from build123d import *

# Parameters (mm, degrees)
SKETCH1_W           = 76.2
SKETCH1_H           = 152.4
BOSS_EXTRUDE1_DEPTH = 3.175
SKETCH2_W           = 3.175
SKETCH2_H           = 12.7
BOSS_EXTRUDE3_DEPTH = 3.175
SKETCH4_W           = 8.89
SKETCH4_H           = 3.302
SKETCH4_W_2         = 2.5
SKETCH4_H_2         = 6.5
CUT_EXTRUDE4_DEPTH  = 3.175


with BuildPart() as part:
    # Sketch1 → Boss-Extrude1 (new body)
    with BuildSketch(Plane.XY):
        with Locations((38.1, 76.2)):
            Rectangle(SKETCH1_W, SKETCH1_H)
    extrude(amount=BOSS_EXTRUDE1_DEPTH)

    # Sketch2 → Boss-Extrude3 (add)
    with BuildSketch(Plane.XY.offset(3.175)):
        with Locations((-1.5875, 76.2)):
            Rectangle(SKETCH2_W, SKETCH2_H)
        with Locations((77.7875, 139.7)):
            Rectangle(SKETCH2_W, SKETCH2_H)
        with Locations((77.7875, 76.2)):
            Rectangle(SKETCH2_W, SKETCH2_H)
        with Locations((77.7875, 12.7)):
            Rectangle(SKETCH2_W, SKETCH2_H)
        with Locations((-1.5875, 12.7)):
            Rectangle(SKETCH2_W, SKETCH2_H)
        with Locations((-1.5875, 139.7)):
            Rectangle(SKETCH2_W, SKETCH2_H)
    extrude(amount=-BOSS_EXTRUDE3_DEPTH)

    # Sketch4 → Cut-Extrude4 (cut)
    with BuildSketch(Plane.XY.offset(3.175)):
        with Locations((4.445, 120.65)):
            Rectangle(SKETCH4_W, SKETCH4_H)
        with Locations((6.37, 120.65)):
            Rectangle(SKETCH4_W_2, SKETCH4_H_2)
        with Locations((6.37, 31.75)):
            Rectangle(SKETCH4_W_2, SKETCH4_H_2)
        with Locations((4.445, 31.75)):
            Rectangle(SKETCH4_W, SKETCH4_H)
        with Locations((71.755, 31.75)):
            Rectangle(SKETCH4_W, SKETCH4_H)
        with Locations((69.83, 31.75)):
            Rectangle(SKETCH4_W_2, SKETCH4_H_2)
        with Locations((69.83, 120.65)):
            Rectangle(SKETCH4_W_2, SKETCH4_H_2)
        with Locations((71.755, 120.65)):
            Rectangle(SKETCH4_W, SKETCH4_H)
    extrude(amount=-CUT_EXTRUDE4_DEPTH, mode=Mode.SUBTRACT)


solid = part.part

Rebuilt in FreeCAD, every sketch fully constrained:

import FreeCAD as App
import Part
import Sketcher
from FreeCAD import Vector
Q = App.Units.Quantity

doc = App.newDocument("Part")
body = doc.addObject("PartDesign::Body", "Body")

sketch1 = doc.addObject("Sketcher::SketchObject", "Sketch")
body.addObject(sketch1)
sketch1.AttachmentSupport = (doc.XY_Plane, [""])
sketch1.MapMode = "FlatFace"
sketch1.addGeometry(Part.LineSegment(Vector(0, 152.4, 0), Vector(0, 0, 0)), False)
sketch1.addGeometry(Part.LineSegment(Vector(0, 0, 0), Vector(76.2, 0, 0)), False)
sketch1.addGeometry(Part.LineSegment(Vector(76.2, 0, 0), Vector(76.2, 152.4, 0)), False)
sketch1.addGeometry(Part.LineSegment(Vector(76.2, 152.4, 0), Vector(0, 152.4, 0)), False)
sketch1.addConstraint(Sketcher.Constraint("Coincident", 0, 2, 1, 1))
sketch1.addConstraint(Sketcher.Constraint("Coincident", 1, 2, 2, 1))
sketch1.addConstraint(Sketcher.Constraint("Coincident", 2, 2, 3, 1))
sketch1.addConstraint(Sketcher.Constraint("Coincident", 3, 2, 0, 1))
sketch1.addConstraint(Sketcher.Constraint("Vertical", 0))
sketch1.addConstraint(Sketcher.Constraint("Horizontal", 1))
sketch1.addConstraint(Sketcher.Constraint("Vertical", 2))
sketch1.addConstraint(Sketcher.Constraint("Horizontal", 3))
sketch1.addConstraint(Sketcher.Constraint("Coincident", 0, 2, -1, 1))
sketch1.addConstraint(Sketcher.Constraint("DistanceX", 1, 1, 1, 2, Q("3 in")))
sketch1.addConstraint(Sketcher.Constraint("DistanceY", 0, 2, 0, 1, Q("6 in")))
pad1 = doc.addObject("PartDesign::Pad", "Pad")
body.addObject(pad1)
pad1.Profile = sketch1
pad1.Length = Q("0.125 in")

sketch2 = doc.addObject("Sketcher::SketchObject", "Sketch001")
body.addObject(sketch2)
sketch2.AttachmentSupport = (doc.XY_Plane, [""])
sketch2.MapMode = "FlatFace"
sketch2.AttachmentOffset = App.Placement(Vector(0, 0, 0.125 * 25.4), App.Rotation())
sketch2.addGeometry(Part.LineSegment(Vector(-3.175, 82.55, 0), Vector(-3.175, 69.85, 0)), False)
sketch2.addGeometry(Part.LineSegment(Vector(-3.175, 69.85, 0), Vector(0, 69.85, 0)), False)
sketch2.addGeometry(Part.LineSegment(Vector(0, 69.85, 0), Vector(0, 82.55, 0)), False)
sketch2.addGeometry(Part.LineSegment(Vector(0, 82.55, 0), Vector(-3.175, 82.55, 0)), False)
sketch2.addGeometry(Part.LineSegment(Vector(76.2, 146.05, 0), Vector(76.2, 133.35, 0)), False)
sketch2.addGeometry(Part.LineSegment(Vector(76.2, 133.35, 0), Vector(79.375, 133.35, 0)), False)
sketch2.addGeometry(Part.LineSegment(Vector(79.375, 133.35, 0), Vector(79.375, 146.05, 0)), False)
sketch2.addGeometry(Part.LineSegment(Vector(79.375, 146.05, 0), Vector(76.2, 146.05, 0)), False)
sketch2.addGeometry(Part.LineSegment(Vector(76.2, 82.55, 0), Vector(76.2, 69.85, 0)), False)
sketch2.addGeometry(Part.LineSegment(Vector(76.2, 69.85, 0), Vector(79.375, 69.85, 0)), False)
sketch2.addGeometry(Part.LineSegment(Vector(79.375, 69.85, 0), Vector(79.375, 82.55, 0)), False)
sketch2.addGeometry(Part.LineSegment(Vector(79.375, 82.55, 0), Vector(76.2, 82.55, 0)), False)
sketch2.addGeometry(Part.LineSegment(Vector(76.2, 19.05, 0), Vector(76.2, 6.35, 0)), False)
sketch2.addGeometry(Part.LineSegment(Vector(76.2, 6.35, 0), Vector(79.375, 6.35, 0)), False)
sketch2.addGeometry(Part.LineSegment(Vector(79.375, 6.35, 0), Vector(79.375, 19.05, 0)), False)
sketch2.addGeometry(Part.LineSegment(Vector(79.375, 19.05, 0), Vector(76.2, 19.05, 0)), False)
sketch2.addGeometry(Part.LineSegment(Vector(-3.175, 19.05, 0), Vector(-3.175, 6.35, 0)), False)
sketch2.addGeometry(Part.LineSegment(Vector(-3.175, 6.35, 0), Vector(0, 6.35, 0)), False)
sketch2.addGeometry(Part.LineSegment(Vector(0, 6.35, 0), Vector(0, 19.05, 0)), False)
sketch2.addGeometry(Part.LineSegment(Vector(0, 19.05, 0), Vector(-3.175, 19.05, 0)), False)
sketch2.addGeometry(Part.LineSegment(Vector(-3.175, 146.05, 0), Vector(-3.175, 133.35, 0)), False)
sketch2.addGeometry(Part.LineSegment(Vector(-3.175, 133.35, 0), Vector(0, 133.35, 0)), False)
sketch2.addGeometry(Part.LineSegment(Vector(0, 133.35, 0), Vector(0, 146.05, 0)), False)
sketch2.addGeometry(Part.LineSegment(Vector(0, 146.05, 0), Vector(-3.175, 146.05, 0)), False)
sketch2.addConstraint(Sketcher.Constraint("Coincident", 0, 2, 1, 1))
sketch2.addConstraint(Sketcher.Constraint("Coincident", 1, 2, 2, 1))
sketch2.addConstraint(Sketcher.Constraint("Coincident", 2, 2, 3, 1))
sketch2.addConstraint(Sketcher.Constraint("Coincident", 3, 2, 0, 1))
sketch2.addConstraint(Sketcher.Constraint("Coincident", 4, 2, 5, 1))
sketch2.addConstraint(Sketcher.Constraint("Coincident", 5, 2, 6, 1))
sketch2.addConstraint(Sketcher.Constraint("Coincident", 6, 2, 7, 1))
sketch2.addConstraint(Sketcher.Constraint("Coincident", 7, 2, 4, 1))
sketch2.addConstraint(Sketcher.Constraint("Coincident", 8, 2, 9, 1))
sketch2.addConstraint(Sketcher.Constraint("Coincident", 9, 2, 10, 1))
sketch2.addConstraint(Sketcher.Constraint("Coincident", 10, 2, 11, 1))
sketch2.addConstraint(Sketcher.Constraint("Coincident", 11, 2, 8, 1))
sketch2.addConstraint(Sketcher.Constraint("Coincident", 12, 2, 13, 1))
sketch2.addConstraint(Sketcher.Constraint("Coincident", 13, 2, 14, 1))
sketch2.addConstraint(Sketcher.Constraint("Coincident", 14, 2, 15, 1))
sketch2.addConstraint(Sketcher.Constraint("Coincident", 15, 2, 12, 1))
sketch2.addConstraint(Sketcher.Constraint("Coincident", 16, 2, 17, 1))
sketch2.addConstraint(Sketcher.Constraint("Coincident", 17, 2, 18, 1))
sketch2.addConstraint(Sketcher.Constraint("Coincident", 18, 2, 19, 1))
sketch2.addConstraint(Sketcher.Constraint("Coincident", 19, 2, 16, 1))
sketch2.addConstraint(Sketcher.Constraint("Coincident", 20, 2, 21, 1))
sketch2.addConstraint(Sketcher.Constraint("Coincident", 21, 2, 22, 1))
sketch2.addConstraint(Sketcher.Constraint("Coincident", 22, 2, 23, 1))
sketch2.addConstraint(Sketcher.Constraint("Coincident", 23, 2, 20, 1))
sketch2.addConstraint(Sketcher.Constraint("Vertical", 0))
sketch2.addConstraint(Sketcher.Constraint("Horizontal", 1))
sketch2.addConstraint(Sketcher.Constraint("Vertical", 2))
sketch2.addConstraint(Sketcher.Constraint("Horizontal", 3))
sketch2.addConstraint(Sketcher.Constraint("Vertical", 4))
sketch2.addConstraint(Sketcher.Constraint("Horizontal", 5))
sketch2.addConstraint(Sketcher.Constraint("Vertical", 6))
sketch2.addConstraint(Sketcher.Constraint("Horizontal", 7))
sketch2.addConstraint(Sketcher.Constraint("Vertical", 8))
sketch2.addConstraint(Sketcher.Constraint("Horizontal", 9))
sketch2.addConstraint(Sketcher.Constraint("Vertical", 10))
sketch2.addConstraint(Sketcher.Constraint("Horizontal", 11))
sketch2.addConstraint(Sketcher.Constraint("Vertical", 12))
sketch2.addConstraint(Sketcher.Constraint("Horizontal", 13))
sketch2.addConstraint(Sketcher.Constraint("Vertical", 14))
sketch2.addConstraint(Sketcher.Constraint("Horizontal", 15))
sketch2.addConstraint(Sketcher.Constraint("Vertical", 16))
sketch2.addConstraint(Sketcher.Constraint("Horizontal", 17))
sketch2.addConstraint(Sketcher.Constraint("Vertical", 18))
sketch2.addConstraint(Sketcher.Constraint("Horizontal", 19))
sketch2.addConstraint(Sketcher.Constraint("Vertical", 20))
sketch2.addConstraint(Sketcher.Constraint("Horizontal", 21))
sketch2.addConstraint(Sketcher.Constraint("Vertical", 22))
sketch2.addConstraint(Sketcher.Constraint("Horizontal", 23))
sketch2.addConstraint(Sketcher.Constraint("PointOnObject", 1, 2, -2))
sketch2.addConstraint(Sketcher.Constraint("PointOnObject", 17, 2, -2))
sketch2.addConstraint(Sketcher.Constraint("PointOnObject", 21, 2, -2))
sketch2.addConstraint(Sketcher.Constraint("Horizontal", 1, 2, 8, 2))
sketch2.addConstraint(Sketcher.Constraint("Horizontal", 3, 2, 10, 2))
sketch2.addConstraint(Sketcher.Constraint("Horizontal", 13, 2, 16, 2))
sketch2.addConstraint(Sketcher.Constraint("Horizontal", 15, 2, 18, 2))
sketch2.addConstraint(Sketcher.Constraint("Horizontal", 5, 2, 20, 2))
sketch2.addConstraint(Sketcher.Constraint("Horizontal", 7, 2, 22, 2))
sketch2.addConstraint(Sketcher.Constraint("Vertical", 7, 2, 8, 2))
sketch2.addConstraint(Sketcher.Constraint("Vertical", 6, 2, 9, 2))
sketch2.addConstraint(Sketcher.Constraint("Vertical", 11, 2, 12, 2))
sketch2.addConstraint(Sketcher.Constraint("Vertical", 10, 2, 13, 2))
sketch2.addConstraint(Sketcher.Constraint("Vertical", 3, 2, 16, 2))
sketch2.addConstraint(Sketcher.Constraint("Vertical", 19, 2, 20, 2))
sketch2.addConstraint(Sketcher.Constraint("Equal", 3, 5))
sketch2.addConstraint(Sketcher.Constraint("Equal", 2, 4))
sketch2.addConstraint(Sketcher.Constraint("Equal", 10, 12))
sketch2.addConstraint(Sketcher.Constraint("DistanceY", 0, 2, 0, 1, Q("0.5 in")))
sketch2.addConstraint(Sketcher.Constraint("DistanceX", -1, 1, 4, 2, Q("3 in")))
sketch2.addConstraint(Sketcher.Constraint("DistanceY", 2, 2, 4, 2, Q("2 in")))
sketch2.addConstraint(Sketcher.Constraint("DistanceY", 12, 2, 11, 2, Q("3 in")))
sketch2.addConstraint(Sketcher.Constraint("DistanceX", 1, 1, 1, 2, Q("0.125 in")))
sketch2.addConstraint(Sketcher.Constraint("DistanceY", -1, 1, 0, 2, Q("2.75 in")))
pad2 = doc.addObject("PartDesign::Pad", "Pad001")
body.addObject(pad2)
pad2.Profile = sketch2
pad2.Length = Q("0.125 in")
pad2.Reversed = True

sketch3 = doc.addObject("Sketcher::SketchObject", "Sketch002")
body.addObject(sketch3)
sketch3.AttachmentSupport = (doc.XY_Plane, [""])
sketch3.MapMode = "FlatFace"
sketch3.AttachmentOffset = App.Placement(Vector(0, 0, 0.125 * 25.4), App.Rotation())
sketch3.addGeometry(Part.LineSegment(Vector(0, 122.301, 0), Vector(0, 118.999, 0)), False)
sketch3.addGeometry(Part.LineSegment(Vector(0, 118.999, 0), Vector(5.12, 118.999, 0)), False)
sketch3.addGeometry(Part.LineSegment(Vector(5.12, 118.999, 0), Vector(5.12, 117.4, 0)), False)
sketch3.addGeometry(Part.LineSegment(Vector(5.12, 117.4, 0), Vector(7.62, 117.4, 0)), False)
sketch3.addGeometry(Part.LineSegment(Vector(7.62, 117.4, 0), Vector(7.62, 118.999, 0)), False)
sketch3.addGeometry(Part.LineSegment(Vector(7.62, 118.999, 0), Vector(8.89, 118.999, 0)), False)
sketch3.addGeometry(Part.LineSegment(Vector(8.89, 118.999, 0), Vector(8.89, 122.301, 0)), False)
sketch3.addGeometry(Part.LineSegment(Vector(8.89, 122.301, 0), Vector(7.62, 122.301, 0)), False)
sketch3.addGeometry(Part.LineSegment(Vector(7.62, 122.301, 0), Vector(7.62, 123.9, 0)), False)
sketch3.addGeometry(Part.LineSegment(Vector(7.62, 123.9, 0), Vector(5.12, 123.9, 0)), False)
sketch3.addGeometry(Part.LineSegment(Vector(5.12, 123.9, 0), Vector(5.12, 122.301, 0)), False)
sketch3.addGeometry(Part.LineSegment(Vector(5.12, 122.301, 0), Vector(0, 122.301, 0)), False)
sketch3.addGeometry(Part.LineSegment(Vector(5.12, 30.099, 0), Vector(5.12, 28.5, 0)), False)
sketch3.addGeometry(Part.LineSegment(Vector(5.12, 28.5, 0), Vector(7.62, 28.5, 0)), False)
sketch3.addGeometry(Part.LineSegment(Vector(7.62, 28.5, 0), Vector(7.62, 30.099, 0)), False)
sketch3.addGeometry(Part.LineSegment(Vector(7.62, 30.099, 0), Vector(8.89, 30.099, 0)), False)
sketch3.addGeometry(Part.LineSegment(Vector(8.89, 30.099, 0), Vector(8.89, 33.401, 0)), False)
sketch3.addGeometry(Part.LineSegment(Vector(8.89, 33.401, 0), Vector(7.62, 33.401, 0)), False)
sketch3.addGeometry(Part.LineSegment(Vector(7.62, 33.401, 0), Vector(7.62, 35, 0)), False)
sketch3.addGeometry(Part.LineSegment(Vector(7.62, 35, 0), Vector(5.12, 35, 0)), False)
sketch3.addGeometry(Part.LineSegment(Vector(5.12, 35, 0), Vector(5.12, 33.401, 0)), False)
sketch3.addGeometry(Part.LineSegment(Vector(5.12, 33.401, 0), Vector(0, 33.401, 0)), False)
sketch3.addGeometry(Part.LineSegment(Vector(0, 33.401, 0), Vector(0, 30.099, 0)), False)
sketch3.addGeometry(Part.LineSegment(Vector(0, 30.099, 0), Vector(5.12, 30.099, 0)), False)
sketch3.addGeometry(Part.LineSegment(Vector(67.31, 33.401, 0), Vector(67.31, 30.099, 0)), False)
sketch3.addGeometry(Part.LineSegment(Vector(67.31, 30.099, 0), Vector(68.58, 30.099, 0)), False)
sketch3.addGeometry(Part.LineSegment(Vector(68.58, 30.099, 0), Vector(68.58, 28.5, 0)), False)
sketch3.addGeometry(Part.LineSegment(Vector(68.58, 28.5, 0), Vector(71.08, 28.5, 0)), False)
sketch3.addGeometry(Part.LineSegment(Vector(71.08, 28.5, 0), Vector(71.08, 30.099, 0)), False)
sketch3.addGeometry(Part.LineSegment(Vector(71.08, 30.099, 0), Vector(76.2, 30.099, 0)), False)
sketch3.addGeometry(Part.LineSegment(Vector(76.2, 30.099, 0), Vector(76.2, 33.401, 0)), False)
sketch3.addGeometry(Part.LineSegment(Vector(76.2, 33.401, 0), Vector(71.08, 33.401, 0)), False)
sketch3.addGeometry(Part.LineSegment(Vector(71.08, 33.401, 0), Vector(71.08, 35, 0)), False)
sketch3.addGeometry(Part.LineSegment(Vector(71.08, 35, 0), Vector(68.58, 35, 0)), False)
sketch3.addGeometry(Part.LineSegment(Vector(68.58, 35, 0), Vector(68.58, 33.401, 0)), False)
sketch3.addGeometry(Part.LineSegment(Vector(68.58, 33.401, 0), Vector(67.31, 33.401, 0)), False)
sketch3.addGeometry(Part.LineSegment(Vector(68.58, 118.999, 0), Vector(68.58, 117.4, 0)), False)
sketch3.addGeometry(Part.LineSegment(Vector(68.58, 117.4, 0), Vector(71.08, 117.4, 0)), False)
sketch3.addGeometry(Part.LineSegment(Vector(71.08, 117.4, 0), Vector(71.08, 118.999, 0)), False)
sketch3.addGeometry(Part.LineSegment(Vector(71.08, 118.999, 0), Vector(76.2, 118.999, 0)), False)
sketch3.addGeometry(Part.LineSegment(Vector(76.2, 118.999, 0), Vector(76.2, 122.301, 0)), False)
sketch3.addGeometry(Part.LineSegment(Vector(76.2, 122.301, 0), Vector(71.08, 122.301, 0)), False)
sketch3.addGeometry(Part.LineSegment(Vector(71.08, 122.301, 0), Vector(71.08, 123.9, 0)), False)
sketch3.addGeometry(Part.LineSegment(Vector(71.08, 123.9, 0), Vector(68.58, 123.9, 0)), False)
sketch3.addGeometry(Part.LineSegment(Vector(68.58, 123.9, 0), Vector(68.58, 122.301, 0)), False)
sketch3.addGeometry(Part.LineSegment(Vector(68.58, 122.301, 0), Vector(67.31, 122.301, 0)), False)
sketch3.addGeometry(Part.LineSegment(Vector(67.31, 122.301, 0), Vector(67.31, 118.999, 0)), False)
sketch3.addGeometry(Part.LineSegment(Vector(67.31, 118.999, 0), Vector(68.58, 118.999, 0)), False)
sketch3.addConstraint(Sketcher.Constraint("Coincident", 0, 2, 1, 1))
sketch3.addConstraint(Sketcher.Constraint("Coincident", 1, 2, 2, 1))
sketch3.addConstraint(Sketcher.Constraint("Coincident", 2, 2, 3, 1))
sketch3.addConstraint(Sketcher.Constraint("Coincident", 3, 2, 4, 1))
sketch3.addConstraint(Sketcher.Constraint("Coincident", 4, 2, 5, 1))
sketch3.addConstraint(Sketcher.Constraint("Coincident", 5, 2, 6, 1))
sketch3.addConstraint(Sketcher.Constraint("Coincident", 6, 2, 7, 1))
sketch3.addConstraint(Sketcher.Constraint("Coincident", 7, 2, 8, 1))
sketch3.addConstraint(Sketcher.Constraint("Coincident", 8, 2, 9, 1))
sketch3.addConstraint(Sketcher.Constraint("Coincident", 9, 2, 10, 1))
sketch3.addConstraint(Sketcher.Constraint("Coincident", 10, 2, 11, 1))
sketch3.addConstraint(Sketcher.Constraint("Coincident", 11, 2, 0, 1))
sketch3.addConstraint(Sketcher.Constraint("Coincident", 12, 2, 13, 1))
sketch3.addConstraint(Sketcher.Constraint("Coincident", 13, 2, 14, 1))
sketch3.addConstraint(Sketcher.Constraint("Coincident", 14, 2, 15, 1))
sketch3.addConstraint(Sketcher.Constraint("Coincident", 15, 2, 16, 1))
sketch3.addConstraint(Sketcher.Constraint("Coincident", 16, 2, 17, 1))
sketch3.addConstraint(Sketcher.Constraint("Coincident", 17, 2, 18, 1))
sketch3.addConstraint(Sketcher.Constraint("Coincident", 18, 2, 19, 1))
sketch3.addConstraint(Sketcher.Constraint("Coincident", 19, 2, 20, 1))
sketch3.addConstraint(Sketcher.Constraint("Coincident", 20, 2, 21, 1))
sketch3.addConstraint(Sketcher.Constraint("Coincident", 21, 2, 22, 1))
sketch3.addConstraint(Sketcher.Constraint("Coincident", 22, 2, 23, 1))
sketch3.addConstraint(Sketcher.Constraint("Coincident", 23, 2, 12, 1))
sketch3.addConstraint(Sketcher.Constraint("Coincident", 24, 2, 25, 1))
sketch3.addConstraint(Sketcher.Constraint("Coincident", 25, 2, 26, 1))
sketch3.addConstraint(Sketcher.Constraint("Coincident", 26, 2, 27, 1))
sketch3.addConstraint(Sketcher.Constraint("Coincident", 27, 2, 28, 1))
sketch3.addConstraint(Sketcher.Constraint("Coincident", 28, 2, 29, 1))
sketch3.addConstraint(Sketcher.Constraint("Coincident", 29, 2, 30, 1))
sketch3.addConstraint(Sketcher.Constraint("Coincident", 30, 2, 31, 1))
sketch3.addConstraint(Sketcher.Constraint("Coincident", 31, 2, 32, 1))
sketch3.addConstraint(Sketcher.Constraint("Coincident", 32, 2, 33, 1))
sketch3.addConstraint(Sketcher.Constraint("Coincident", 33, 2, 34, 1))
sketch3.addConstraint(Sketcher.Constraint("Coincident", 34, 2, 35, 1))
sketch3.addConstraint(Sketcher.Constraint("Coincident", 35, 2, 24, 1))
sketch3.addConstraint(Sketcher.Constraint("Coincident", 36, 2, 37, 1))
sketch3.addConstraint(Sketcher.Constraint("Coincident", 37, 2, 38, 1))
sketch3.addConstraint(Sketcher.Constraint("Coincident", 38, 2, 39, 1))
sketch3.addConstraint(Sketcher.Constraint("Coincident", 39, 2, 40, 1))
sketch3.addConstraint(Sketcher.Constraint("Coincident", 40, 2, 41, 1))
sketch3.addConstraint(Sketcher.Constraint("Coincident", 41, 2, 42, 1))
sketch3.addConstraint(Sketcher.Constraint("Coincident", 42, 2, 43, 1))
sketch3.addConstraint(Sketcher.Constraint("Coincident", 43, 2, 44, 1))
sketch3.addConstraint(Sketcher.Constraint("Coincident", 44, 2, 45, 1))
sketch3.addConstraint(Sketcher.Constraint("Coincident", 45, 2, 46, 1))
sketch3.addConstraint(Sketcher.Constraint("Coincident", 46, 2, 47, 1))
sketch3.addConstraint(Sketcher.Constraint("Coincident", 47, 2, 36, 1))
sketch3.addConstraint(Sketcher.Constraint("Vertical", 0))
sketch3.addConstraint(Sketcher.Constraint("Horizontal", 1))
sketch3.addConstraint(Sketcher.Constraint("Vertical", 2))
sketch3.addConstraint(Sketcher.Constraint("Horizontal", 3))
sketch3.addConstraint(Sketcher.Constraint("Vertical", 4))
sketch3.addConstraint(Sketcher.Constraint("Horizontal", 5))
sketch3.addConstraint(Sketcher.Constraint("Vertical", 6))
sketch3.addConstraint(Sketcher.Constraint("Horizontal", 7))
sketch3.addConstraint(Sketcher.Constraint("Vertical", 8))
sketch3.addConstraint(Sketcher.Constraint("Horizontal", 9))
sketch3.addConstraint(Sketcher.Constraint("Vertical", 10))
sketch3.addConstraint(Sketcher.Constraint("Horizontal", 11))
sketch3.addConstraint(Sketcher.Constraint("Vertical", 12))
sketch3.addConstraint(Sketcher.Constraint("Horizontal", 13))
sketch3.addConstraint(Sketcher.Constraint("Vertical", 14))
sketch3.addConstraint(Sketcher.Constraint("Horizontal", 15))
sketch3.addConstraint(Sketcher.Constraint("Vertical", 16))
sketch3.addConstraint(Sketcher.Constraint("Horizontal", 17))
sketch3.addConstraint(Sketcher.Constraint("Vertical", 18))
sketch3.addConstraint(Sketcher.Constraint("Horizontal", 19))
sketch3.addConstraint(Sketcher.Constraint("Vertical", 20))
sketch3.addConstraint(Sketcher.Constraint("Horizontal", 21))
sketch3.addConstraint(Sketcher.Constraint("Vertical", 22))
sketch3.addConstraint(Sketcher.Constraint("Horizontal", 23))
sketch3.addConstraint(Sketcher.Constraint("Vertical", 24))
sketch3.addConstraint(Sketcher.Constraint("Horizontal", 25))
sketch3.addConstraint(Sketcher.Constraint("Vertical", 26))
sketch3.addConstraint(Sketcher.Constraint("Horizontal", 27))
sketch3.addConstraint(Sketcher.Constraint("Vertical", 28))
sketch3.addConstraint(Sketcher.Constraint("Horizontal", 29))
sketch3.addConstraint(Sketcher.Constraint("Vertical", 30))
sketch3.addConstraint(Sketcher.Constraint("Horizontal", 31))
sketch3.addConstraint(Sketcher.Constraint("Vertical", 32))
sketch3.addConstraint(Sketcher.Constraint("Horizontal", 33))
sketch3.addConstraint(Sketcher.Constraint("Vertical", 34))
sketch3.addConstraint(Sketcher.Constraint("Horizontal", 35))
sketch3.addConstraint(Sketcher.Constraint("Vertical", 36))
sketch3.addConstraint(Sketcher.Constraint("Horizontal", 37))
sketch3.addConstraint(Sketcher.Constraint("Vertical", 38))
sketch3.addConstraint(Sketcher.Constraint("Horizontal", 39))
sketch3.addConstraint(Sketcher.Constraint("Vertical", 40))
sketch3.addConstraint(Sketcher.Constraint("Horizontal", 41))
sketch3.addConstraint(Sketcher.Constraint("Vertical", 42))
sketch3.addConstraint(Sketcher.Constraint("Horizontal", 43))
sketch3.addConstraint(Sketcher.Constraint("Vertical", 44))
sketch3.addConstraint(Sketcher.Constraint("Horizontal", 45))
sketch3.addConstraint(Sketcher.Constraint("Vertical", 46))
sketch3.addConstraint(Sketcher.Constraint("Horizontal", 47))
sketch3.addConstraint(Sketcher.Constraint("PointOnObject", 0, 2, -2))
sketch3.addConstraint(Sketcher.Constraint("PointOnObject", 21, 2, -2))
sketch3.addConstraint(Sketcher.Constraint("Horizontal", 1, 2, 4, 2))
sketch3.addConstraint(Sketcher.Constraint("Horizontal", 7, 2, 10, 2))
sketch3.addConstraint(Sketcher.Constraint("Horizontal", 17, 2, 20, 2))
sketch3.addConstraint(Sketcher.Constraint("Horizontal", 15, 2, 22, 2))
sketch3.addConstraint(Sketcher.Constraint("Horizontal", 23, 2, 24, 2))
sketch3.addConstraint(Sketcher.Constraint("Horizontal", 13, 2, 26, 2))
sketch3.addConstraint(Sketcher.Constraint("Horizontal", 25, 2, 28, 2))
sketch3.addConstraint(Sketcher.Constraint("Horizontal", 21, 2, 30, 2))
sketch3.addConstraint(Sketcher.Constraint("Horizontal", 19, 2, 32, 2))
sketch3.addConstraint(Sketcher.Constraint("Horizontal", 31, 2, 34, 2))
sketch3.addConstraint(Sketcher.Constraint("Horizontal", 3, 2, 36, 2))
sketch3.addConstraint(Sketcher.Constraint("Horizontal", 5, 2, 38, 2))
sketch3.addConstraint(Sketcher.Constraint("Horizontal", 11, 2, 40, 2))
sketch3.addConstraint(Sketcher.Constraint("Horizontal", 9, 2, 42, 2))
sketch3.addConstraint(Sketcher.Constraint("Horizontal", 41, 2, 44, 2))
sketch3.addConstraint(Sketcher.Constraint("Horizontal", 39, 2, 46, 2))
sketch3.addConstraint(Sketcher.Constraint("Vertical", 4, 2, 7, 2))
sketch3.addConstraint(Sketcher.Constraint("Vertical", 2, 2, 9, 2))
sketch3.addConstraint(Sketcher.Constraint("Vertical", 10, 2, 12, 2))
sketch3.addConstraint(Sketcher.Constraint("Vertical", 8, 2, 13, 2))
sketch3.addConstraint(Sketcher.Constraint("Vertical", 6, 2, 15, 2))
sketch3.addConstraint(Sketcher.Constraint("Vertical", 14, 2, 17, 2))
sketch3.addConstraint(Sketcher.Constraint("Vertical", 12, 2, 19, 2))
sketch3.addConstraint(Sketcher.Constraint("Vertical", 28, 2, 31, 2))
sketch3.addConstraint(Sketcher.Constraint("Vertical", 26, 2, 33, 2))
sketch3.addConstraint(Sketcher.Constraint("Vertical", 34, 2, 36, 2))
sketch3.addConstraint(Sketcher.Constraint("Vertical", 32, 2, 37, 2))
sketch3.addConstraint(Sketcher.Constraint("Vertical", 30, 2, 39, 2))
sketch3.addConstraint(Sketcher.Constraint("Vertical", 38, 2, 41, 2))
sketch3.addConstraint(Sketcher.Constraint("Vertical", 36, 2, 43, 2))
sketch3.addConstraint(Sketcher.Constraint("Vertical", 35, 2, 45, 2))
sketch3.addConstraint(Sketcher.Constraint("Equal", 17, 25))
sketch3.addConstraint(Sketcher.Constraint("Equal", 19, 27))
sketch3.addConstraint(Sketcher.Constraint("Equal", 23, 29))
sketch3.addConstraint(Sketcher.Constraint("Equal", 4, 8))
sketch3.addConstraint(Sketcher.Constraint("Equal", 10, 12))
sketch3.addConstraint(Sketcher.Constraint("Equal", 6, 16))
sketch3.addConstraint(Sketcher.Constraint("Equal", 14, 18))
sketch3.addConstraint(Sketcher.Constraint("DistanceX", -1, 1, 29, 2, Q("3 in")))
sketch3.addConstraint(Sketcher.Constraint("DistanceX", 5, 1, 5, 2, Q("0.05 in")))
sketch3.addConstraint(Sketcher.Constraint("DistanceY", 0, 2, 0, 1, Q("0.13 in")))
sketch3.addConstraint(Sketcher.Constraint("DistanceX", -1, 1, 3, 2, Q("0.3 in")))
sketch3.addConstraint(Sketcher.Constraint("DistanceY", 12, 2, 2, 2, Q("3.5 in")))
sketch3.addConstraint(Sketcher.Constraint("DistanceY", -1, 1, 0, 2, Q("4.685 in")))
sketch3.addConstraint(Sketcher.Constraint("DistanceX", 1, 1, 1, 2, Q("5.12 mm")))
sketch3.addConstraint(Sketcher.Constraint("DistanceY", 2, 2, 2, 1, Q("1.599 mm")))
pocket1 = doc.addObject("PartDesign::Pocket", "Pocket")
body.addObject(pocket1)
pocket1.Profile = sketch3
pocket1.Length = Q("0.125 in")

doc.recompute()
